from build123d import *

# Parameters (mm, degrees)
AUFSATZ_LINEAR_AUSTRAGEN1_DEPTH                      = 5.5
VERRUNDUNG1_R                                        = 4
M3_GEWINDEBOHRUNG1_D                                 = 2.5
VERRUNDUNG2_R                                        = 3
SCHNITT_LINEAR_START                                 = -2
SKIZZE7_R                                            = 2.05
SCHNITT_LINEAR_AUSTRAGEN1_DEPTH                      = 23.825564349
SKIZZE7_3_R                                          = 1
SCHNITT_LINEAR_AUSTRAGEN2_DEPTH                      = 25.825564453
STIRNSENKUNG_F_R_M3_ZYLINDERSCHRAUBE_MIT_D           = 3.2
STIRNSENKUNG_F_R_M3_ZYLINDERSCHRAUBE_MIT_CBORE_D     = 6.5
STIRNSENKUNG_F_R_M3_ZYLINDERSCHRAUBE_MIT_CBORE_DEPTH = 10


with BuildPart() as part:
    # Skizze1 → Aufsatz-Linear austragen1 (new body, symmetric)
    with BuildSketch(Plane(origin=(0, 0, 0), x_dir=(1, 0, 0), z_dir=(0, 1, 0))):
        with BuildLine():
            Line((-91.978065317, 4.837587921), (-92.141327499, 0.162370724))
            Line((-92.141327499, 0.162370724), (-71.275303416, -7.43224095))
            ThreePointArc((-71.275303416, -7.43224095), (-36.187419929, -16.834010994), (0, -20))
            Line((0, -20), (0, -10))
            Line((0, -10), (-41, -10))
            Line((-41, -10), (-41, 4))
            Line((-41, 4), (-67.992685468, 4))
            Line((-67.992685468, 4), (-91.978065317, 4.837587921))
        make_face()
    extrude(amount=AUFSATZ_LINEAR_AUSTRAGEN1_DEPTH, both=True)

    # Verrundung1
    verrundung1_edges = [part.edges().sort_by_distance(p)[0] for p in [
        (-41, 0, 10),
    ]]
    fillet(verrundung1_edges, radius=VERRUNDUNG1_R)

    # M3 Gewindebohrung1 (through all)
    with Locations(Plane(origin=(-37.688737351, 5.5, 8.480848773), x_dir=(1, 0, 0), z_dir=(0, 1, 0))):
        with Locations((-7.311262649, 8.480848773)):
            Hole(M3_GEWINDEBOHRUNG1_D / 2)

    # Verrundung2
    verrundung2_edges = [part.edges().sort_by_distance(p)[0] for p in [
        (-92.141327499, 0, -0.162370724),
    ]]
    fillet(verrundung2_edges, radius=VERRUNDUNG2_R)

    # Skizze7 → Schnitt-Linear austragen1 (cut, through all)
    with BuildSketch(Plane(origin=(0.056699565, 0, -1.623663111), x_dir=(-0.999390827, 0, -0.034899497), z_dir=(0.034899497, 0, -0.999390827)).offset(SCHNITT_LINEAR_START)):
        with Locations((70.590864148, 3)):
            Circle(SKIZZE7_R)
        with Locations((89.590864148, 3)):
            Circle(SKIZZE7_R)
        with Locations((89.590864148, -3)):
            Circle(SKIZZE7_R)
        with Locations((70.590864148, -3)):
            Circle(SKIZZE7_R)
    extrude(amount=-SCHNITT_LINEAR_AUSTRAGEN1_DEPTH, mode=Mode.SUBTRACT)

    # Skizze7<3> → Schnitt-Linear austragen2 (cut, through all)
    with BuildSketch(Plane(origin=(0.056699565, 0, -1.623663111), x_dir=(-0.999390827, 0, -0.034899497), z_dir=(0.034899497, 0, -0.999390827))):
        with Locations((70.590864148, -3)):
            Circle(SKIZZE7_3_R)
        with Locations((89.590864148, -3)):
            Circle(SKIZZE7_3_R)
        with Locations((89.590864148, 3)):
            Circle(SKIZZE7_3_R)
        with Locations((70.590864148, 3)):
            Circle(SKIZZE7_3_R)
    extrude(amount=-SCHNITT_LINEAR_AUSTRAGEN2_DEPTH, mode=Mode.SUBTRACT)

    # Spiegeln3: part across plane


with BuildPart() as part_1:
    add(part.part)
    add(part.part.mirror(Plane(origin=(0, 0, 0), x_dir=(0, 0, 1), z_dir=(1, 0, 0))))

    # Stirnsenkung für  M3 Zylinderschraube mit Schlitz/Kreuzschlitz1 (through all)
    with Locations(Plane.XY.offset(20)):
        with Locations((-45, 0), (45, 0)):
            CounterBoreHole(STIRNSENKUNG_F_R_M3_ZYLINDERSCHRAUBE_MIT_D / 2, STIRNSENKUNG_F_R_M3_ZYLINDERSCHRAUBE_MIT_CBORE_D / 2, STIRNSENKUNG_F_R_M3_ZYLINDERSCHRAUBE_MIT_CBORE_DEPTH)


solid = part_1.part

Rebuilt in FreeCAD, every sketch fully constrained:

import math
import FreeCAD as App
import Part
import Sketcher
from FreeCAD import Vector
Q = App.Units.Quantity


def edges_at(feature, points):
    """Names of the edges that pass closest to the given points."""
    edges = feature.Shape.Edges
    near = lambda p: min(range(len(edges)), key=lambda i: edges[i].distToShape(Part.Vertex(*p))[0])
    return sorted({f"Edge{near(p) + 1}" for p in points})

doc = App.newDocument("Part")
params = doc.addObject("Spreadsheet::Sheet", "Params")
for row, (alias, value) in enumerate([
    ("sketch1_width", "41 mm"),
    ("sketch1_height", "10 mm"),
    ("sketch1_height2", "14 mm"),
    ("sketch1_length", "24 mm"),
    ("pad1_length", "11 mm"),
    ("fillet_radius", "4 mm"),
    ("sketch2_diameter", "2.5 mm"),
    ("hole_diameter", "2.5 mm"),
    ("fillet2_radius", "3 mm"),
    ("sketch3_diameter", "4.1 mm"),
    ("sketch4_diameter", "2 mm"),
    ("sketch5_diameter", "3.2 mm"),
    ("hole2_diameter", "3.2 mm"),
    ("hole2_cbore_diameter", "6.5 mm"),
    ("hole2_cbore_depth", "10 mm"),
], start=1):
    params.set(f"A{row}", alias)
    params.set(f"B{row}", "=" + value)
    params.setAlias(f"B{row}", alias)

body = doc.addObject("PartDesign::Body", "Body")

# Sketch on XZ plane
sketch1 = body.newObject("Sketcher::SketchObject", "Sketch")
sketch1.AttachmentSupport = (doc.getObject("XZ_Plane"), [""])
sketch1.MapMode = "FlatFace"
sketch1.addGeometry([
    Part.LineSegment(Vector(-92, -4.8, 0), Vector(-92.1, -0.2, 0)),  # 0
    Part.LineSegment(Vector(-92.1, -0.2, 0), Vector(-71.3, 7.4, 0)),  # 1
    Part.ArcOfCircle(Part.Circle(Vector(0, -188.4, 0), Vector(0, 0, 1), 208.4), math.radians(90), math.radians(110)),  # 2
    Part.LineSegment(Vector(0, 20, 0), Vector(0, 10, 0)),  # 3
    Part.LineSegment(Vector(0, 10, 0), Vector(-41, 10, 0)),  # 4
    Part.LineSegment(Vector(-41, 10, 0), Vector(-41, -4, 0)),  # 5
    Part.LineSegment(Vector(-41, -4, 0), Vector(-68, -4, 0)),  # 6
    Part.LineSegment(Vector(-68, -4, 0), Vector(-92, -4.8, 0)),  # 7
], False)
sketch1.addConstraint([
    Sketcher.Constraint("Coincident", 0, 2, 1, 1),
    Sketcher.Constraint("Tangent", 1, 2, 2, 2),
    Sketcher.Constraint("Coincident", 2, 1, 3, 1),
    Sketcher.Constraint("Coincident", 3, 2, 4, 1),
    Sketcher.Constraint("Coincident", 4, 2, 5, 1),
    Sketcher.Constraint("Coincident", 5, 2, 6, 1),
    Sketcher.Constraint("Coincident", 6, 2, 7, 1),
    Sketcher.Constraint("Coincident", 7, 2, 0, 1),
    Sketcher.Constraint("Vertical", 3),
    Sketcher.Constraint("Horizontal", 4),
    Sketcher.Constraint("Vertical", 5),
    Sketcher.Constraint("Horizontal", 6),
    Sketcher.Constraint("PointOnObject", 2, 3, -2),
    Sketcher.Constraint("PointOnObject", 2, 1, -2),
    Sketcher.Constraint("Perpendicular", 0, 7),
    Sketcher.Constraint("DistanceX", 4, 2, 4, 1, Q("41 mm")),
    Sketcher.Constraint("DistanceY", 3, 2, 3, 1, Q("10 mm")),
    Sketcher.Constraint("DistanceY", 5, 2, 5, 1, Q("14 mm")),
    Sketcher.Constraint("Angle", 0, Q("92 deg")),
    Sketcher.Constraint("Angle", 1, Q("20 deg")),
    Sketcher.Constraint("Distance", 7, Q("24 mm")),
    Sketcher.Constraint("DistanceY", -1, 1, 2, 1, Q("20 mm")),
    Sketcher.Constraint("Radius", 2, Q("208.395046 mm")),
    Sketcher.Constraint("Distance", 1, Q("22.205159 mm")),
])
sketch1.setExpression("Constraints[15]", "Params.sketch1_width")
sketch1.setExpression("Constraints[16]", "Params.sketch1_height")
sketch1.setExpression("Constraints[17]", "Params.sketch1_height2")
sketch1.setExpression("Constraints[20]", "Params.sketch1_length")
pad1 = body.newObject("PartDesign::Pad", "Pad")
pad1.Profile = sketch1
pad1.setExpression("Length", "Params.pad1_length")
pad1.Midplane = True
doc.recompute()

fillet = body.newObject("PartDesign::Fillet", "Fillet")
fillet.Base = (pad1, edges_at(pad1, [(-41, 0, 10)]))
fillet.setExpression("Radius", "Params.fillet_radius")

# Sketch on XZ plane
sketch2 = body.newObject("Sketcher::SketchObject", "Sketch001")
sketch2.AttachmentSupport = (doc.getObject("XZ_Plane"), [""])
sketch2.MapMode = "FlatFace"
sketch2.AttachmentOffset = App.Placement(Vector(0, 0, -5.5), App.Rotation())
sketch2.addGeometry(Part.Circle(Vector(-45, 0, 0), Vector(0, 0, 1), 1.2), False)
sketch2.addConstraint([
    Sketcher.Constraint("PointOnObject", 0, 3, -1),
    Sketcher.Constraint("Diameter", 0, Q("2.5 mm")),
    Sketcher.Constraint("DistanceX", 0, 3, -1, 1, Q("45 mm")),
])
sketch2.setExpression("Constraints[1]", "Params.sketch2_diameter")
doc.recompute()
hole = body.newObject("PartDesign::Hole", "Hole")
hole.Profile = sketch2
hole.ThreadType = "None"
hole.setExpression("Diameter", "Params.hole_diameter")
hole.DepthType = "ThroughAll"
hole.Reversed = True
doc.recompute()

fillet2 = body.newObject("PartDesign::Fillet", "Fillet001")
fillet2.Base = (hole, edges_at(hole, [(-92.141, 0, -0.162)]))
fillet2.setExpression("Radius", "Params.fillet2_radius")

# Sketch on an angled plane
sketch3 = body.newObject("Sketcher::SketchObject", "Sketch002")
sketch3.Placement = App.Placement(Vector(-0.013099, 0, 0.375119), App.Rotation(Vector(-0.999390827, 0, -0.034899497), Vector(0, 1, 0), Vector(0.034899497, 0, -0.999390827), "ZXY"))
sketch3.addGeometry([
    Part.Circle(Vector(70.6, 3, 0), Vector(0, 0, 1), 2),
    Part.Circle(Vector(89.6, 3, 0), Vector(0, 0, 1), 2),
    Part.Circle(Vector(89.6, -3, 0), Vector(0, 0, 1), 2),
    Part.Circle(Vector(70.6, -3, 0), Vector(0, 0, 1), 2),
], False)
sketch3.addConstraint([
    Sketcher.Constraint("Equal", 0, 1),
    Sketcher.Constraint("Equal", 1, 2),
    Sketcher.Constraint("Equal", 2, 3),
    Sketcher.Constraint("Symmetric", 1, 3, 2, 3, -1),
    Sketcher.Constraint("Symmetric", 0, 3, 3, 3, -1),
    Sketcher.Constraint("Horizontal", 0, 3, 1, 3),
    Sketcher.Constraint("Diameter", 0, Q("4.1 mm")),
    Sketcher.Constraint("DistanceY", -1, 1, 0, 3, Q("3 mm")),
    Sketcher.Constraint("DistanceX", 0, 3, 1, 3, Q("19 mm")),
    Sketcher.Constraint("DistanceX", -1, 1, 0, 3, Q("70.590864 mm")),
])
sketch3.setExpression("Constraints[6]", "Params.sketch3_diameter")
pocket1 = body.newObject("PartDesign::Pocket", "Pocket")
pocket1.Profile = sketch3
pocket1.Type = "ThroughAll"

# Sketch on an angled plane
sketch4 = body.newObject("Sketcher::SketchObject", "Sketch003")
sketch4.Placement = App.Placement(Vector(0.0567, 0, -1.623663), App.Rotation(Vector(-0.999390827, 0, -0.034899497), Vector(0, 1, 0), Vector(0.034899497, 0, -0.999390827), "ZXY"))
sketch4.addGeometry([
    Part.Circle(Vector(70.6, -3, 0), Vector(0, 0, 1), 1),
    Part.Circle(Vector(89.6, -3, 0), Vector(0, 0, 1), 1),
    Part.Circle(Vector(89.6, 3, 0), Vector(0, 0, 1), 1),
    Part.Circle(Vector(70.6, 3, 0), Vector(0, 0, 1), 1),
], False)
sketch4.addConstraint([
    Sketcher.Constraint("Equal", 0, 1),
    Sketcher.Constraint("Equal", 1, 2),
    Sketcher.Constraint("Equal", 2, 3),
    Sketcher.Constraint("Symmetric", 1, 3, 2, 3, -1),
    Sketcher.Constraint("Symmetric", 0, 3, 3, 3, -1),
    Sketcher.Constraint("Horizontal", 0, 3, 1, 3),
    Sketcher.Constraint("Diameter", 0, Q("2 mm")),
    Sketcher.Constraint("DistanceY", 0, 3, -1, 1, Q("3 mm")),
    Sketcher.Constraint("DistanceX", 0, 3, 1, 3, Q("19 mm")),
    Sketcher.Constraint("DistanceX", -1, 1, 0, 3, Q("70.590864 mm")),
])
sketch4.setExpression("Constraints[6]", "Params.sketch4_diameter")
pocket2 = body.newObject("PartDesign::Pocket", "Pocket001")
pocket2.Profile = sketch4
pocket2.Type = "ThroughAll"
body2 = doc.addObject("PartDesign::Body", "Body001")
doc.recompute()

body2.BaseFeature = body
doc.recompute()

mirroring = doc.addObject("Part::Mirroring", "Mirroring")
mirroring.Source = body
mirroring.Base = Vector(0, 0, 0)
mirroring.Normal = Vector(1, 0, 0)
body3 = doc.addObject("PartDesign::Body", "Body002")
body3.BaseFeature = mirroring
boolean = body2.newObject("PartDesign::Boolean", "Boolean")
boolean.Type = "Fuse"
boolean.addObjects([body3])
doc.recompute()

# Sketch on XY plane
sketch5 = body2.newObject("Sketcher::SketchObject", "Sketch004")
sketch5.AttachmentSupport = (doc.getObject("XY_Plane001"), [""])
sketch5.MapMode = "FlatFace"
sketch5.AttachmentOffset = App.Placement(Vector(0, 0, 20), App.Rotation())
sketch5.addGeometry([
    Part.Circle(Vector(-45, 0, 0), Vector(0, 0, 1), 1.6),
    Part.Circle(Vector(45, 0, 0), Vector(0, 0, 1), 1.6),
], False)
sketch5.addConstraint([
    Sketcher.Constraint("Equal", 0, 1),
    Sketcher.Constraint("Symmetric", 0, 3, 1, 3, -1, 1),
    Sketcher.Constraint("PointOnObject", 0, 3, -1),
    Sketcher.Constraint("Diameter", 0, Q("3.2 mm")),
    Sketcher.Constraint("DistanceX", 0, 3, -1, 1, Q("45 mm")),
])
sketch5.setExpression("Constraints[3]", "Params.sketch5_diameter")
doc.recompute()
hole2 = body2.newObject("PartDesign::Hole", "Hole001")
hole2.Profile = sketch5
hole2.ThreadType = "None"
hole2.setExpression("Diameter", "Params.hole2_diameter")
hole2.DepthType = "ThroughAll"
hole2.HoleCutType = "Counterbore"
hole2.setExpression("HoleCutDiameter", "Params.hole2_cbore_diameter")
hole2.setExpression("HoleCutDepth", "Params.hole2_cbore_depth")
mirroring.Visibility = False

doc.recompute()
